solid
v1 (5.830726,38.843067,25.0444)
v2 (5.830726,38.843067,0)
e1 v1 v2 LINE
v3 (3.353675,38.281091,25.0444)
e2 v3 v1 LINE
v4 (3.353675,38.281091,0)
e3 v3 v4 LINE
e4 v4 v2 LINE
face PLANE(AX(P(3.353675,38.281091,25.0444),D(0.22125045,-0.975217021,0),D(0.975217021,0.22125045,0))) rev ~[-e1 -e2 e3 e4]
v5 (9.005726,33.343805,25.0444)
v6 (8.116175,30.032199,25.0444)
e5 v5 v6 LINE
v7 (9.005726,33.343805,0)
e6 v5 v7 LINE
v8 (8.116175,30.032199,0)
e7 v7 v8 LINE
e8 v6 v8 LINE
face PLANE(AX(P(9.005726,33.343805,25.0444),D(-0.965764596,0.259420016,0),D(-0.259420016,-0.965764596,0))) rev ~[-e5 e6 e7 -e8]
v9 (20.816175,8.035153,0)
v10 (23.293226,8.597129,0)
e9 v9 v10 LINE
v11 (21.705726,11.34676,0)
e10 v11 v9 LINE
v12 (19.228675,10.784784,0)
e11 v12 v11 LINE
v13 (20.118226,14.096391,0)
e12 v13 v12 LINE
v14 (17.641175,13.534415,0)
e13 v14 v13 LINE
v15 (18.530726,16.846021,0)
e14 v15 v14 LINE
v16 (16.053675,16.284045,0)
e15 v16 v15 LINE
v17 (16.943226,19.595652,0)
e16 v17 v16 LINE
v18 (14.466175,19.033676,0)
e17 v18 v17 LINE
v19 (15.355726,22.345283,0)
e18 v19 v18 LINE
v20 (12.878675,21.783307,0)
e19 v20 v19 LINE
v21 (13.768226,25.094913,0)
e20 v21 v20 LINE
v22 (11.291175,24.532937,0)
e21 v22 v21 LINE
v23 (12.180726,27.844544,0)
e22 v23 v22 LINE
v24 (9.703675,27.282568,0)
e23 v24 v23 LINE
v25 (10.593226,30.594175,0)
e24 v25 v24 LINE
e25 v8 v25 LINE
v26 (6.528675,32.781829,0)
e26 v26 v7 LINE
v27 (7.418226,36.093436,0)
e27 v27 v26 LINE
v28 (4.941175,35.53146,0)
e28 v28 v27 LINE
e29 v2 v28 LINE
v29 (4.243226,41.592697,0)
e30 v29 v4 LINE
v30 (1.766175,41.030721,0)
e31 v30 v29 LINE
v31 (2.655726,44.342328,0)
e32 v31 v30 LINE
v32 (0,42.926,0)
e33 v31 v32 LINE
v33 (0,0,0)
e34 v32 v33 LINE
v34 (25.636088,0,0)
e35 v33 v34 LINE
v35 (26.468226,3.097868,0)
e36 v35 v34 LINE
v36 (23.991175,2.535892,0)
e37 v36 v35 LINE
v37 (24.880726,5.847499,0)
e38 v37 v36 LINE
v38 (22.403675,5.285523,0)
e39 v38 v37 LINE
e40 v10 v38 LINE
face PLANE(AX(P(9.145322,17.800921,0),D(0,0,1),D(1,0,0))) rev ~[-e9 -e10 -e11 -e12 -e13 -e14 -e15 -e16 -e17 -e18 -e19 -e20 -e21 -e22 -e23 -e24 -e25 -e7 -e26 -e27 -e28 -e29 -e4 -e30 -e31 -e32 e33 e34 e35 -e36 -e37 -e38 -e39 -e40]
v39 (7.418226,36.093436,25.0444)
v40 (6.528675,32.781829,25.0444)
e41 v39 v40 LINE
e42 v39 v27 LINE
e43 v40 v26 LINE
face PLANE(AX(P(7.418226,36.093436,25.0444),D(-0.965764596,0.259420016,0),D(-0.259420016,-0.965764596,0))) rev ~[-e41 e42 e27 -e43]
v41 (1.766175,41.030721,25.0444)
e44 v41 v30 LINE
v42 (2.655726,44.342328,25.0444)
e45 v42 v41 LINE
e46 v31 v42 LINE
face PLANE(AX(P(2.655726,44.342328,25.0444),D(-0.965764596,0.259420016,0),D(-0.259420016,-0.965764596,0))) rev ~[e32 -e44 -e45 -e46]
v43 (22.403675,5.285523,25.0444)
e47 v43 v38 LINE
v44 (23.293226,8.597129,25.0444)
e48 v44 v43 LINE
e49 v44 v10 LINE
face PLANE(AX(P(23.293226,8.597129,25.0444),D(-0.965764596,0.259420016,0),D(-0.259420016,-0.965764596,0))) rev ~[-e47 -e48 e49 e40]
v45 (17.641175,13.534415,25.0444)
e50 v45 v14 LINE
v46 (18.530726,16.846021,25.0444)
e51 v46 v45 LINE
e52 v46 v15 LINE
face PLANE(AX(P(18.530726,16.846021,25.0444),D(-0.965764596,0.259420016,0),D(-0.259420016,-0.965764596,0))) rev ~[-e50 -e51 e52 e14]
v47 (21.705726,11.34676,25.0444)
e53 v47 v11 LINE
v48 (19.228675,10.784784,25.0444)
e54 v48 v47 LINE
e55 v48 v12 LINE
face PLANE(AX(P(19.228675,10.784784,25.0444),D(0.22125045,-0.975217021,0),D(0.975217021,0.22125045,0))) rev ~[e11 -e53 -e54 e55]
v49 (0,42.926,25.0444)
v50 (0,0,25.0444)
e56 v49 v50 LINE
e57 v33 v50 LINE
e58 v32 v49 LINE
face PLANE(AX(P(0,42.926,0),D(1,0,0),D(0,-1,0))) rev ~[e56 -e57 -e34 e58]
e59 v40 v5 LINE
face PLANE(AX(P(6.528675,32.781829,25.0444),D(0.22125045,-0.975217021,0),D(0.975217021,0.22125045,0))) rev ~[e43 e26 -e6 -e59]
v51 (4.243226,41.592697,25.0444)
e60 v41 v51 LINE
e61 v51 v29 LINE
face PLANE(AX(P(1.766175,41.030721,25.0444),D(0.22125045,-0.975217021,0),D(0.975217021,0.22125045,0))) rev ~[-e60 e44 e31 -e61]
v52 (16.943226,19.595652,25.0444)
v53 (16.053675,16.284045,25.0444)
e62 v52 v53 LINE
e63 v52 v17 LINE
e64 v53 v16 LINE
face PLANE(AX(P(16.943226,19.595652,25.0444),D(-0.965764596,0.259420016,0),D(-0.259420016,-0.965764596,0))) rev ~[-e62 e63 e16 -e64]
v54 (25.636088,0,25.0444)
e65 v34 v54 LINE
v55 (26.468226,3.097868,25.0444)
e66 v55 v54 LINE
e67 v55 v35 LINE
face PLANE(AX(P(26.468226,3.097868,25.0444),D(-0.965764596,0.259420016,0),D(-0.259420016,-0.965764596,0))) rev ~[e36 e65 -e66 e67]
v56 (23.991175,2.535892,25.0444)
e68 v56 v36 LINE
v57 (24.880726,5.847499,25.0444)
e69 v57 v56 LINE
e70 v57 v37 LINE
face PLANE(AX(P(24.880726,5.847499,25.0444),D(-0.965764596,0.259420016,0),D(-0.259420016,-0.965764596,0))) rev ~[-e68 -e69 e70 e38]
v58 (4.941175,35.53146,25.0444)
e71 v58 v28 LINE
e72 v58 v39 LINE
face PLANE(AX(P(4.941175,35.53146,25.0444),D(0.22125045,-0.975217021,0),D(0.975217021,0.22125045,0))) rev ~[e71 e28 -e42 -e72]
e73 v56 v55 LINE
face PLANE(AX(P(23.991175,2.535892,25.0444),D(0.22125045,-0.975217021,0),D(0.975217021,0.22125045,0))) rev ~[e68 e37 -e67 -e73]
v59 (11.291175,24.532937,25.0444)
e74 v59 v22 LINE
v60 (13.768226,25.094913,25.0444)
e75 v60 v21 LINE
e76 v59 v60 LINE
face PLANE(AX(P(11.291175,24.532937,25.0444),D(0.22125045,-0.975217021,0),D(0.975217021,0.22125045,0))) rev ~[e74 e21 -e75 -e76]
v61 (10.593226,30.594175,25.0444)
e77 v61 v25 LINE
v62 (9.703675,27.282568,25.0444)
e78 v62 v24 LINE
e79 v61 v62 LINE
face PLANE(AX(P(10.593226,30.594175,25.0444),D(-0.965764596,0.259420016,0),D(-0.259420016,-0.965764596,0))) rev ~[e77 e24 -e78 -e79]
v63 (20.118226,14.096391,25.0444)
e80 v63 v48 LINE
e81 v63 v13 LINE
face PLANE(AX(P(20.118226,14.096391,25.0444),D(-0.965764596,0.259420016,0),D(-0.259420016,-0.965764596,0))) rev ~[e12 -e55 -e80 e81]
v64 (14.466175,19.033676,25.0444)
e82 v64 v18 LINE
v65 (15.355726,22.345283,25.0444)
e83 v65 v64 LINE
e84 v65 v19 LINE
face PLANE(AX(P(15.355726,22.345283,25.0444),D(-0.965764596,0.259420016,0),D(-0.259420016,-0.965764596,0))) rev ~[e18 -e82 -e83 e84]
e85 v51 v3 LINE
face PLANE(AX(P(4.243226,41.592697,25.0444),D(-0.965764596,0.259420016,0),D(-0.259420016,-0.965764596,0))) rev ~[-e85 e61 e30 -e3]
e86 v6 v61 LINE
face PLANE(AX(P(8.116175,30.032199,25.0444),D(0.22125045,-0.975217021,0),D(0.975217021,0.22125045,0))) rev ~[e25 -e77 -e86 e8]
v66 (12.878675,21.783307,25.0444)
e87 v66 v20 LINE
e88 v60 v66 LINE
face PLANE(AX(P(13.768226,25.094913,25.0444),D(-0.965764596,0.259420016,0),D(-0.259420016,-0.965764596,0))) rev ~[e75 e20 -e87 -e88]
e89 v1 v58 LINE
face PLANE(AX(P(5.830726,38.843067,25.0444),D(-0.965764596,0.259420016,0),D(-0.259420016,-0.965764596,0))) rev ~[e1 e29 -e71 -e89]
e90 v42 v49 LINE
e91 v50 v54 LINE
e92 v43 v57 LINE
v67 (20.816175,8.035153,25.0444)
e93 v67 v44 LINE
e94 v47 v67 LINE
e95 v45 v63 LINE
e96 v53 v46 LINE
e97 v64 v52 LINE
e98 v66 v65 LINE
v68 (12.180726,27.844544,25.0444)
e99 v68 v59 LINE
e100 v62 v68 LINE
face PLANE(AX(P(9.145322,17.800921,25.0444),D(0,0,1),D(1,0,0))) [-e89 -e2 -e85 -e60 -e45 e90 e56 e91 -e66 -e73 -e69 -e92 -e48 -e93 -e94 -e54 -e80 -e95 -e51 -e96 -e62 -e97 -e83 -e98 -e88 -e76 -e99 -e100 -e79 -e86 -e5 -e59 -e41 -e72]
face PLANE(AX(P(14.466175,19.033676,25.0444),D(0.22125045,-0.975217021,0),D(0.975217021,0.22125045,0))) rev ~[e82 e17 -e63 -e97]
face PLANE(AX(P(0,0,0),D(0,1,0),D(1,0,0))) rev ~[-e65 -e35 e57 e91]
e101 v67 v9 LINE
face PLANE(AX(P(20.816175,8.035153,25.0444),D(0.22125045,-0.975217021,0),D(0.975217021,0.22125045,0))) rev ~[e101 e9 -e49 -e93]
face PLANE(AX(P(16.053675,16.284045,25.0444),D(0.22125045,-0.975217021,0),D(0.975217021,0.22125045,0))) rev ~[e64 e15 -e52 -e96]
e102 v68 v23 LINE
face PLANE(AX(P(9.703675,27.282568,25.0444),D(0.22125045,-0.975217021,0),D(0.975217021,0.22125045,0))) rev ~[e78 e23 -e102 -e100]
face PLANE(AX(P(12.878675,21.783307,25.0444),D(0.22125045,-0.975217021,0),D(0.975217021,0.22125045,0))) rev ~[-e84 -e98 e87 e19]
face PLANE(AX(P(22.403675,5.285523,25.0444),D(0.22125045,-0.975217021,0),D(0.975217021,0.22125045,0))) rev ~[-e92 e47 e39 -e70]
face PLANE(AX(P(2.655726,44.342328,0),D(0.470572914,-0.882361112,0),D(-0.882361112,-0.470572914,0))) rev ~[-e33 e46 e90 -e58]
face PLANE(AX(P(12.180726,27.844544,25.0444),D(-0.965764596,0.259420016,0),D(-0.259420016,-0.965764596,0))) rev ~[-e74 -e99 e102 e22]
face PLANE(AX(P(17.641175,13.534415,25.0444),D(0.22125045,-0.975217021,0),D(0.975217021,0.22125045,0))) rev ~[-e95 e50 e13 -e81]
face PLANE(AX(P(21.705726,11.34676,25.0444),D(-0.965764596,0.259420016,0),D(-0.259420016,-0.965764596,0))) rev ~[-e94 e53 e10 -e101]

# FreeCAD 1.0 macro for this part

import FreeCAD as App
import Part
import Sketcher
from FreeCAD import Vector
Q = App.Units.Quantity

doc = App.newDocument("Part")
body = doc.addObject("PartDesign::Body", "Body")

# Sketch on XY plane
sketch1 = body.newObject("Sketcher::SketchObject", "Sketch")
sketch1.AttachmentSupport = (doc.getObject("XY_Plane"), [""])
sketch1.MapMode = "FlatFace"
sketch1.addGeometry([
    Part.LineSegment(Vector(0, 42.9, 0), Vector(0, 0, 0)),  # 0
    Part.LineSegment(Vector(0, 0, 0), Vector(25.9, 0, 0)),  # 1
    Part.LineSegment(Vector(25.9, 0, 0), Vector(26.9, 2.3, 0)),  # 2
    Part.LineSegment(Vector(26.9, 2.3, 0), Vector(2.7, 44.3, 0)),  # 3
    Part.LineSegment(Vector(2.7, 44.3, 0), Vector(0, 42.9, 0)),  # 4
], False)
sketch1.addConstraint([
    Sketcher.Constraint("Coincident", 0, 2, 1, 1),
    Sketcher.Constraint("Coincident", 1, 2, 2, 1),
    Sketcher.Constraint("Coincident", 2, 2, 3, 1),
    Sketcher.Constraint("Coincident", 3, 2, 4, 1),
    Sketcher.Constraint("Coincident", 4, 2, 0, 1),
    Sketcher.Constraint("Vertical", 0),
    Sketcher.Constraint("Horizontal", 1),
    Sketcher.Constraint("Coincident", 0, 2, -1, 1),
    Sketcher.Constraint("Angle", 3, Q("120 deg")),
    Sketcher.Constraint("DistanceX", 1, 1, 1, 2, Q("1.02 in")),
    Sketcher.Constraint("DistanceY", 0, 2, 0, 1, Q("1.69 in")),
    Sketcher.Constraint("DistanceX", -1, 1, 2, 2, Q("26.9179 mm")),
    Sketcher.Constraint("Distance", 2, Q("2.529368 mm")),
    Sketcher.Constraint("Distance", 3, Q("48.524348 mm")),
])
pad1 = body.newObject("PartDesign::Pad", "Pad")
pad1.Profile = sketch1
pad1.Length = Q("0.986 in")

# Sketch on XY plane
sketch2 = body.newObject("Sketcher::SketchObject", "Sketch001")
sketch2.AttachmentSupport = (doc.getObject("XY_Plane"), [""])
sketch2.MapMode = "FlatFace"
sketch2.AttachmentOffset = App.Placement(Vector(0, 0, 0.986 * 25.4), App.Rotation())
sketch2.addGeometry([
    Part.LineSegment(Vector(2.7, 44.3, 0), Vector(1.8, 41, 0)),
    Part.LineSegment(Vector(1.8, 41, 0), Vector(4.2, 41.6, 0)),
    Part.LineSegment(Vector(4.2, 41.6, 0), Vector(2.7, 44.3, 0)),
], False)
sketch2.addConstraint([
    Sketcher.Constraint("Coincident", 0, 2, 1, 1),
    Sketcher.Constraint("Coincident", 1, 2, 2, 1),
    Sketcher.Constraint("Coincident", 2, 2, 0, 1),
    Sketcher.Constraint("Angle", 2, Q("120 deg")),
    Sketcher.Constraint("Distance", 1, Q("0.1 in")),
    Sketcher.Constraint("Distance", 0, Q("0.135 in")),
    Sketcher.Constraint("Distance", 2, Q("0.125 in")),
    Sketcher.Constraint("DistanceY", -1, 1, 0, 2, Q("41.030721 mm")),
    Sketcher.Constraint("DistanceX", -1, 1, 0, 2, Q("1.766175 mm")),
])
pocket1 = body.newObject("PartDesign::Pocket", "Pocket")
pocket1.Profile = sketch2
pocket1.Type = "ThroughAll"
doc.recompute()

datumline = body.newObject("PartDesign::Line", "DatumLine")
datumline.Placement = App.Placement(Vector(0, 0, 0), App.Rotation(Vector(0, 0, 1), Vector(0.5, -0.866025404, 0)))
linearpattern = body.newObject("PartDesign::LinearPattern", "LinearPattern")
linearpattern.Originals = [pocket1]
linearpattern.Direction = (datumline, [""])
linearpattern.Mode = "offset"
linearpattern.Offset = Q("0.125 in")
linearpattern.Occurrences = 17
body.Tip = linearpattern

doc.recompute()
